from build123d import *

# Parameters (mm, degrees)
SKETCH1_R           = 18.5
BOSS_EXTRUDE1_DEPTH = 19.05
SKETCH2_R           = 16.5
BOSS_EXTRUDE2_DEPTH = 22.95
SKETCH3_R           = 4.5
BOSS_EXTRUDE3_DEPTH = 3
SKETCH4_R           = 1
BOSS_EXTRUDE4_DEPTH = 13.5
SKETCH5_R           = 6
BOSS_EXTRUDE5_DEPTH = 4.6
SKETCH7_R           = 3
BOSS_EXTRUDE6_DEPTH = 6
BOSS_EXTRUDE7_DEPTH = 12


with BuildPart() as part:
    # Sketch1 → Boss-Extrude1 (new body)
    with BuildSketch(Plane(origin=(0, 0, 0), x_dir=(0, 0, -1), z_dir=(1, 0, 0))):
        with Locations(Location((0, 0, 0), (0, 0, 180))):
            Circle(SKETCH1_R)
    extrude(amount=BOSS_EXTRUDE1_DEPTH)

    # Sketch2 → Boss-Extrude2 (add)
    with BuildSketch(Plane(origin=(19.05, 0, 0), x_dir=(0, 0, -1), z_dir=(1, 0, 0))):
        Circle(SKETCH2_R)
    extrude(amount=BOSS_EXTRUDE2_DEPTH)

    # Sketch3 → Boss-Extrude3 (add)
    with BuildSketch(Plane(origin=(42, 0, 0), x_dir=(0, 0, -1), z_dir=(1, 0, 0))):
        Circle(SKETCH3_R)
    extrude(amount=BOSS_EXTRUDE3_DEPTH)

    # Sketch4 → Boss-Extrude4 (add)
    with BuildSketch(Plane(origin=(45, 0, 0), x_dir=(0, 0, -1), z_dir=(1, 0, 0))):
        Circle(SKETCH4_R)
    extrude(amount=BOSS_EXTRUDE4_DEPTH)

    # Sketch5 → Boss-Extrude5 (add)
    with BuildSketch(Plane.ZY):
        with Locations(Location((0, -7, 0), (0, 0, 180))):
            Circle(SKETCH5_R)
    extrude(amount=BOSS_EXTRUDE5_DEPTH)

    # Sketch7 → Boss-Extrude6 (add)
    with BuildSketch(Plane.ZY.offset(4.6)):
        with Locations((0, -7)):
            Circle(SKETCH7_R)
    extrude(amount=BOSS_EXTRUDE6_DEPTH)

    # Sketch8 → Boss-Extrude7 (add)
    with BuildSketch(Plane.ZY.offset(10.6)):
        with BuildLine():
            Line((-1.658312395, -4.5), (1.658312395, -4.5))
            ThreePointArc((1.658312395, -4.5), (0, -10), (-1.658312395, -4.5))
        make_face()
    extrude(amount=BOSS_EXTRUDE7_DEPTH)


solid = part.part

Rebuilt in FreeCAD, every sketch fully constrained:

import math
import FreeCAD as App
import Part
import Sketcher
from FreeCAD import Vector
Q = App.Units.Quantity

doc = App.newDocument("Part")
params = doc.addObject("Spreadsheet::Sheet", "Params")
for row, (alias, value) in enumerate([
    ("sketch1_diameter", "37 mm"),
    ("pad1_length", "19.05 mm"),
    ("sketch2_diameter", "33 mm"),
    ("pad2_length", "22.95 mm"),
    ("sketch3_diameter", "9 mm"),
    ("pad3_length", "3 mm"),
    ("sketch4_diameter", "2 mm"),
    ("pad4_length", "13.5 mm"),
    ("sketch5_diameter", "12 mm"),
    ("pad5_length", "4.6 mm"),
    ("sketch6_diameter", "6 mm"),
    ("pad6_length", "6 mm"),
    ("sketch7_radius", "3 mm"),
    ("pad7_length", "12 mm"),
], start=1):
    params.set(f"A{row}", alias)
    params.set(f"B{row}", "=" + value)
    params.setAlias(f"B{row}", alias)

body = doc.addObject("PartDesign::Body", "Body")

# Sketch on YZ plane
sketch1 = body.newObject("Sketcher::SketchObject", "Sketch")
sketch1.AttachmentSupport = (doc.getObject("YZ_Plane"), [""])
sketch1.MapMode = "FlatFace"
sketch1.addGeometry(Part.Circle(Vector(0, 0, 0), Vector(0, 0, 1), 18), False)
sketch1.addConstraint([
    Sketcher.Constraint("Coincident", 0, 3, -1, 1),
    Sketcher.Constraint("Diameter", 0, Q("37 mm")),
])
sketch1.setExpression("Constraints[1]", "Params.sketch1_diameter")
pad1 = body.newObject("PartDesign::Pad", "Pad")
pad1.Profile = sketch1
pad1.setExpression("Length", "Params.pad1_length")

# Sketch on YZ plane
sketch2 = body.newObject("Sketcher::SketchObject", "Sketch001")
sketch2.AttachmentSupport = (doc.getObject("YZ_Plane"), [""])
sketch2.MapMode = "FlatFace"
sketch2.AttachmentOffset = App.Placement(Vector(0, 0, 19.05), App.Rotation())
sketch2.addGeometry(Part.Circle(Vector(0, 0, 0), Vector(0, 0, 1), 16), False)
sketch2.addConstraint([
    Sketcher.Constraint("Coincident", 0, 3, -1, 1),
    Sketcher.Constraint("Diameter", 0, Q("33 mm")),
])
sketch2.setExpression("Constraints[1]", "Params.sketch2_diameter")
pad2 = body.newObject("PartDesign::Pad", "Pad001")
pad2.Profile = sketch2
pad2.setExpression("Length", "Params.pad2_length")

# Sketch on YZ plane
sketch3 = body.newObject("Sketcher::SketchObject", "Sketch002")
sketch3.AttachmentSupport = (doc.getObject("YZ_Plane"), [""])
sketch3.MapMode = "FlatFace"
sketch3.AttachmentOffset = App.Placement(Vector(0, 0, 42), App.Rotation())
sketch3.addGeometry(Part.Circle(Vector(0, 0, 0), Vector(0, 0, 1), 4.5), False)
sketch3.addConstraint([
    Sketcher.Constraint("Coincident", 0, 3, -1, 1),
    Sketcher.Constraint("Diameter", 0, Q("9 mm")),
])
sketch3.setExpression("Constraints[1]", "Params.sketch3_diameter")
pad3 = body.newObject("PartDesign::Pad", "Pad002")
pad3.Profile = sketch3
pad3.setExpression("Length", "Params.pad3_length")

# Sketch on YZ plane
sketch4 = body.newObject("Sketcher::SketchObject", "Sketch003")
sketch4.AttachmentSupport = (doc.getObject("YZ_Plane"), [""])
sketch4.MapMode = "FlatFace"
sketch4.AttachmentOffset = App.Placement(Vector(0, 0, 45), App.Rotation())
sketch4.addGeometry(Part.Circle(Vector(0, 0, 0), Vector(0, 0, 1), 1), False)
sketch4.addConstraint([
    Sketcher.Constraint("Coincident", 0, 3, -1, 1),
    Sketcher.Constraint("Diameter", 0, Q("2 mm")),
])
sketch4.setExpression("Constraints[1]", "Params.sketch4_diameter")
pad4 = body.newObject("PartDesign::Pad", "Pad003")
pad4.Profile = sketch4
pad4.setExpression("Length", "Params.pad4_length")

# Sketch on YZ plane
sketch5 = body.newObject("Sketcher::SketchObject", "Sketch004")
sketch5.AttachmentSupport = (doc.getObject("YZ_Plane"), [""])
sketch5.MapMode = "FlatFace"
sketch5.addGeometry(Part.Circle(Vector(-7, 0, 0), Vector(0, 0, 1), 6), False)
sketch5.addConstraint([
    Sketcher.Constraint("PointOnObject", 0, 3, -1),
    Sketcher.Constraint("Diameter", 0, Q("12 mm")),
    Sketcher.Constraint("DistanceX", 0, 3, -1, 1, Q("7 mm")),
])
sketch5.setExpression("Constraints[1]", "Params.sketch5_diameter")
pad5 = body.newObject("PartDesign::Pad", "Pad004")
pad5.Profile = sketch5
pad5.setExpression("Length", "Params.pad5_length")
pad5.Reversed = True

# Sketch on YZ plane
sketch6 = body.newObject("Sketcher::SketchObject", "Sketch005")
sketch6.AttachmentSupport = (doc.getObject("YZ_Plane"), [""])
sketch6.MapMode = "FlatFace"
sketch6.AttachmentOffset = App.Placement(Vector(0, 0, -4.6), App.Rotation())
sketch6.addGeometry(Part.Circle(Vector(-7, 0, 0), Vector(0, 0, 1), 3), False)
sketch6.addConstraint([
    Sketcher.Constraint("PointOnObject", 0, 3, -1),
    Sketcher.Constraint("Diameter", 0, Q("6 mm")),
    Sketcher.Constraint("DistanceX", 0, 3, -1, 1, Q("7 mm")),
])
sketch6.setExpression("Constraints[1]", "Params.sketch6_diameter")
pad6 = body.newObject("PartDesign::Pad", "Pad005")
pad6.Profile = sketch6
pad6.setExpression("Length", "Params.pad6_length")
pad6.Reversed = True

# Sketch on YZ plane
sketch7 = body.newObject("Sketcher::SketchObject", "Sketch006")
sketch7.AttachmentSupport = (doc.getObject("YZ_Plane"), [""])
sketch7.MapMode = "FlatFace"
sketch7.AttachmentOffset = App.Placement(Vector(0, 0, -10.6), App.Rotation())
sketch7.addGeometry([
    Part.LineSegment(Vector(-4.5, 1.7, 0), Vector(-4.5, -1.7, 0)),
    Part.ArcOfCircle(Part.Circle(Vector(-7, 0, 0), Vector(0, 0, 1), 3), math.radians(34), math.radians(326)),
], False)
sketch7.addConstraint([
    Sketcher.Constraint("Coincident", 0, 1, 1, 1),
    Sketcher.Constraint("Coincident", 1, 2, 0, 2),
    Sketcher.Constraint("Vertical", 0),
    Sketcher.Constraint("PointOnObject", 1, 3, -1),
    Sketcher.Constraint("Radius", 1, Q("3 mm")),
    Sketcher.Constraint("DistanceX", 1, 3, -1, 1, Q("7 mm")),
    Sketcher.Constraint("DistanceX", 0, 1, -1, 1, Q("4.5 mm")),
])
sketch7.setExpression("Constraints[4]", "Params.sketch7_radius")
pad7 = body.newObject("PartDesign::Pad", "Pad006")
pad7.Profile = sketch7
pad7.setExpression("Length", "Params.pad7_length")
pad7.Reversed = True

doc.recompute()
